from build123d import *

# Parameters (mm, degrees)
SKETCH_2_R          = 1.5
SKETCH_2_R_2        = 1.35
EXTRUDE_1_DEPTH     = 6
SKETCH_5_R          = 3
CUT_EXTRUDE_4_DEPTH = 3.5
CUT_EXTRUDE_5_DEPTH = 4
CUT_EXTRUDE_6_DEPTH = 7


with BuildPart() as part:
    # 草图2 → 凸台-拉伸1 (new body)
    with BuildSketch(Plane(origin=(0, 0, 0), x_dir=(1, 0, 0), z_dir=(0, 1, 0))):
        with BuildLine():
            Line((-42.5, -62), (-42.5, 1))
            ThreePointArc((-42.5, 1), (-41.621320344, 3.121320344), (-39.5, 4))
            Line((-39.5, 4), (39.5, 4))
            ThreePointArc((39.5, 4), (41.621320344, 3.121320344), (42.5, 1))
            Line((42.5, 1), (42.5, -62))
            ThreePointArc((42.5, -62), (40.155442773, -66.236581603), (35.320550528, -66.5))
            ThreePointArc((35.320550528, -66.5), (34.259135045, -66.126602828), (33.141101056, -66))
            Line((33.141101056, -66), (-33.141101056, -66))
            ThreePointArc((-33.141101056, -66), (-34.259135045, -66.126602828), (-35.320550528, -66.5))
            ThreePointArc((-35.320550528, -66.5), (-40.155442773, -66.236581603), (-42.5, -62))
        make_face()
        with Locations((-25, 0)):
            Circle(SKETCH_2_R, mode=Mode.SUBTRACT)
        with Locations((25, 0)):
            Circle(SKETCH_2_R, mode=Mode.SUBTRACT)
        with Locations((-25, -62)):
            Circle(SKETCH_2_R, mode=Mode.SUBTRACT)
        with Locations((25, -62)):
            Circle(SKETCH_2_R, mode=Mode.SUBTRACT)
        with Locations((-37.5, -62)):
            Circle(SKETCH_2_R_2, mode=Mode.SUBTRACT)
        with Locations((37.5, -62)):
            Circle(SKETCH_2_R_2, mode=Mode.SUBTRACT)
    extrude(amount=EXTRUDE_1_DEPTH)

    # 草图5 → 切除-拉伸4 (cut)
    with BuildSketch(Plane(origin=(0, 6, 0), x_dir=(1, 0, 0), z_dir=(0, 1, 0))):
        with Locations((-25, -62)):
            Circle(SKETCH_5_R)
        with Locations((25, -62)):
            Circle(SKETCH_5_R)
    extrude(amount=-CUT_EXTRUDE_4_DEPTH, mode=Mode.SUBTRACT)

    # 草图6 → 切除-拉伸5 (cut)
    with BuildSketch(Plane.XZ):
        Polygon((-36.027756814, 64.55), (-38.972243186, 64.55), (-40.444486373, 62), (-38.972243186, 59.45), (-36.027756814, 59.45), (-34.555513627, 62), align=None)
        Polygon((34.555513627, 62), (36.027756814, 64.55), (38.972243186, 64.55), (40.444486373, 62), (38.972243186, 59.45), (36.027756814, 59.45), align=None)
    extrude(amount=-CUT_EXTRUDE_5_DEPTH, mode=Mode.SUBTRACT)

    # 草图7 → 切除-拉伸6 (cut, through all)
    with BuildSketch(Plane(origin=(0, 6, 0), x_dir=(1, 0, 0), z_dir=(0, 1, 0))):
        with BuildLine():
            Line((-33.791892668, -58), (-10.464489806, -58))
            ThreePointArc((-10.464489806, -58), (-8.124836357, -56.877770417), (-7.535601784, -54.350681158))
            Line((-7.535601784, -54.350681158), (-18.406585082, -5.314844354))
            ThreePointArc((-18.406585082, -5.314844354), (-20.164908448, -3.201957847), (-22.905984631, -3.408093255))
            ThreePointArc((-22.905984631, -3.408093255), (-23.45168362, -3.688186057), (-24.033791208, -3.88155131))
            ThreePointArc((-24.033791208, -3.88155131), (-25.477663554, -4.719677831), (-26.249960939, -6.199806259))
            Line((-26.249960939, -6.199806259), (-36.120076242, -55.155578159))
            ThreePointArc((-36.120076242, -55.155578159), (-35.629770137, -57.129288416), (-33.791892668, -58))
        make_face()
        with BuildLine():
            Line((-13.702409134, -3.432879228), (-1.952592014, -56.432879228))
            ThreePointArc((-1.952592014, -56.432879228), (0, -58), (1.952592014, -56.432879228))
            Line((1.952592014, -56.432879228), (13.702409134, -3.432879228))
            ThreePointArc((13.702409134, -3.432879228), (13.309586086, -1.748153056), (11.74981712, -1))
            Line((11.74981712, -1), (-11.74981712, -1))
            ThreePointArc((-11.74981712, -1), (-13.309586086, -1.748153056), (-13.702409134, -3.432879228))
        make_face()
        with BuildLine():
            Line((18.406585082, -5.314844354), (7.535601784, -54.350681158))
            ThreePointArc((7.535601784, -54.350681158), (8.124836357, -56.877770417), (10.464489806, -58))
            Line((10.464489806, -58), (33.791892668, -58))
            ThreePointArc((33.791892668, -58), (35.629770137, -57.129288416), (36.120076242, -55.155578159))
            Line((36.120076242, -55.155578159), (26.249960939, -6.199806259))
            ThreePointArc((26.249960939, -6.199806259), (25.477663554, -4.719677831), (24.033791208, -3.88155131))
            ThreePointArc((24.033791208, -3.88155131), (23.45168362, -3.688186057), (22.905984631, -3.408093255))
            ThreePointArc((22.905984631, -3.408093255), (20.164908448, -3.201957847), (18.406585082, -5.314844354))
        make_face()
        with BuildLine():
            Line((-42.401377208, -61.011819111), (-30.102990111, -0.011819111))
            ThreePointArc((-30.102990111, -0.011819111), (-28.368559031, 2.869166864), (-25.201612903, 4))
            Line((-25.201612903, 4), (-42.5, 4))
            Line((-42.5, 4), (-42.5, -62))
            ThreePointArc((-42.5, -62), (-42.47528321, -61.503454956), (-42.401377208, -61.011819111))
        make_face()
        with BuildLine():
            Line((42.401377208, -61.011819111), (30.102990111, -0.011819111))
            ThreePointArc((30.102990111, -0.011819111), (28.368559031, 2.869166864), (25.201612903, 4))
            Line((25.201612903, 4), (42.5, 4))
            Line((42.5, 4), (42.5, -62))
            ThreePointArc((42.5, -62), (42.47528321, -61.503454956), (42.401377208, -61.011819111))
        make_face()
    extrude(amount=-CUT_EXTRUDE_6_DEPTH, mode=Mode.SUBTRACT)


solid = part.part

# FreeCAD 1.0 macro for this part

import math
import FreeCAD as App
import Part
import Sketcher
from FreeCAD import Vector
Q = App.Units.Quantity


def add_polygon(sketch, points):
    """Adds a closed chain of lines whose ends are joined by coincident constraints."""
    first, n = sketch.GeometryCount, len(points)
    for a, b in zip(points, points[1:] + points[:1]):
        sketch.addGeometry(Part.LineSegment(App.Vector(*a, 0), App.Vector(*b, 0)), False)
    for i in range(n):
        sketch.addConstraint(Sketcher.Constraint("Coincident", first + i, 2, first + (i + 1) % n, 1))

doc = App.newDocument("Part")
body = doc.addObject("PartDesign::Body", "Body")

sketch1 = doc.addObject("Sketcher::SketchObject", "Sketch")
body.addObject(sketch1)
sketch1.AttachmentSupport = (doc.XZ_Plane, [""])
sketch1.MapMode = "FlatFace"
sketch1.addGeometry(Part.LineSegment(Vector(-42.5, -1, 0), Vector(-42.5, 62, 0)), False)
sketch1.addGeometry(Part.ArcOfCircle(Part.Circle(Vector(-37.5, 62, 0), Vector(0, 0, 1), 5), math.radians(64), math.radians(180)), False)
sketch1.addGeometry(Part.ArcOfCircle(Part.Circle(Vector(-33.1, 71, 0), Vector(0, 0, 1), 5), math.radians(-116), math.radians(-90)), False)
sketch1.addGeometry(Part.LineSegment(Vector(-33.1, 66, 0), Vector(33.1, 66, 0)), False)
sketch1.addGeometry(Part.ArcOfCircle(Part.Circle(Vector(33.1, 71, 0), Vector(0, 0, 1), 5), math.radians(-90), math.radians(-64)), False)
sketch1.addGeometry(Part.ArcOfCircle(Part.Circle(Vector(37.5, 62, 0), Vector(0, 0, 1), 5), math.radians(0), math.radians(116)), False)
sketch1.addGeometry(Part.LineSegment(Vector(42.5, 62, 0), Vector(42.5, -1, 0)), False)
sketch1.addGeometry(Part.ArcOfCircle(Part.Circle(Vector(39.5, -1, 0), Vector(0, 0, 1), 3), math.radians(-90), math.radians(0)), False)
sketch1.addGeometry(Part.LineSegment(Vector(39.5, -4, 0), Vector(-39.5, -4, 0)), False)
sketch1.addGeometry(Part.ArcOfCircle(Part.Circle(Vector(-39.5, -1, 0), Vector(0, 0, 1), 3), math.radians(180), math.radians(270)), False)
sketch1.addGeometry(Part.Circle(Vector(37.5, 62, 0), Vector(0, 0, 1), 1.4), False)
sketch1.addGeometry(Part.Circle(Vector(25, 62, 0), Vector(0, 0, 1), 1.5), False)
sketch1.addGeometry(Part.Circle(Vector(-25, 62, 0), Vector(0, 0, 1), 1.5), False)
sketch1.addGeometry(Part.Circle(Vector(-37.5, 62, 0), Vector(0, 0, 1), 1.4), False)
sketch1.addGeometry(Part.Circle(Vector(25, 0, 0), Vector(0, 0, 1), 1.5), False)
sketch1.addGeometry(Part.Circle(Vector(-25, 0, 0), Vector(0, 0, 1), 1.5), False)
sketch1.addConstraint(Sketcher.Constraint("Tangent", 0, 2, 1, 2))
sketch1.addConstraint(Sketcher.Constraint("Tangent", 1, 1, 2, 1))
sketch1.addConstraint(Sketcher.Constraint("Tangent", 2, 2, 3, 1))
sketch1.addConstraint(Sketcher.Constraint("Tangent", 3, 2, 4, 1))
sketch1.addConstraint(Sketcher.Constraint("Tangent", 4, 2, 5, 2))
sketch1.addConstraint(Sketcher.Constraint("Tangent", 5, 1, 6, 1))
sketch1.addConstraint(Sketcher.Constraint("Tangent", 6, 2, 7, 2))
sketch1.addConstraint(Sketcher.Constraint("Tangent", 7, 1, 8, 1))
sketch1.addConstraint(Sketcher.Constraint("Tangent", 8, 2, 9, 2))
sketch1.addConstraint(Sketcher.Constraint("Tangent", 9, 1, 0, 1))
sketch1.addConstraint(Sketcher.Constraint("Vertical", 0))
sketch1.addConstraint(Sketcher.Constraint("Horizontal", 3))
sketch1.addConstraint(Sketcher.Constraint("Vertical", 6))
sketch1.addConstraint(Sketcher.Constraint("Horizontal", 8))
sketch1.addConstraint(Sketcher.Constraint("Coincident", 10, 3, 5, 3))
sketch1.addConstraint(Sketcher.Constraint("Coincident", 13, 3, 1, 3))
sketch1.addConstraint(Sketcher.Constraint("Equal", 1, 2))
sketch1.addConstraint(Sketcher.Constraint("Equal", 2, 4))
sketch1.addConstraint(Sketcher.Constraint("Equal", 4, 5))
sketch1.addConstraint(Sketcher.Constraint("Equal", 7, 9))
sketch1.addConstraint(Sketcher.Constraint("Equal", 11, 12))
sketch1.addConstraint(Sketcher.Constraint("Equal", 10, 13))
sketch1.addConstraint(Sketcher.Constraint("Equal", 12, 14))
sketch1.addConstraint(Sketcher.Constraint("Equal", 14, 15))
sketch1.addConstraint(Sketcher.Constraint("Symmetric", 14, 3, 15, 3, -1, 1))
sketch1.addConstraint(Sketcher.Constraint("Symmetric", 1, 3, 5, 3, -2))
sketch1.addConstraint(Sketcher.Constraint("Symmetric", 11, 3, 12, 3, -2))
sketch1.addConstraint(Sketcher.Constraint("PointOnObject", 14, 3, -1))
sketch1.addConstraint(Sketcher.Constraint("Horizontal", 10, 3, 11, 3))
sketch1.addConstraint(Sketcher.Constraint("Vertical", 11, 3, 14, 3))
sketch1.addConstraint(Sketcher.Constraint("Diameter", 11, Q("3 mm")))
sketch1.addConstraint(Sketcher.Constraint("Radius", 1, Q("5 mm")))
sketch1.addConstraint(Sketcher.Constraint("Radius", 7, Q("3 mm")))
sketch1.addConstraint(Sketcher.Constraint("Diameter", 10, Q("2.7 mm")))
sketch1.addConstraint(Sketcher.Constraint("DistanceX", 8, 2, 8, 1, Q("79 mm")))
sketch1.addConstraint(Sketcher.Constraint("DistanceY", 0, 1, 0, 2, Q("63 mm")))
sketch1.addConstraint(Sketcher.Constraint("DistanceY", -1, 1, 1, 3, Q("62 mm")))
sketch1.addConstraint(Sketcher.Constraint("DistanceY", -1, 1, 2, 3, Q("71 mm")))
sketch1.addConstraint(Sketcher.Constraint("DistanceX", -1, 1, 11, 3, Q("25 mm")))
pad1 = doc.addObject("PartDesign::Pad", "Pad")
body.addObject(pad1)
pad1.Profile = sketch1
pad1.Length = 6
pad1.Reversed = True

sketch2 = doc.addObject("Sketcher::SketchObject", "Sketch001")
body.addObject(sketch2)
sketch2.AttachmentSupport = (doc.XZ_Plane, [""])
sketch2.MapMode = "FlatFace"
sketch2.AttachmentOffset = App.Placement(Vector(0, 0, -6), App.Rotation())
sketch2.addGeometry(Part.Circle(Vector(-25, 62, 0), Vector(0, 0, 1), 3), False)
sketch2.addGeometry(Part.Circle(Vector(25, 62, 0), Vector(0, 0, 1), 3), False)
sketch2.addConstraint(Sketcher.Constraint("Equal", 0, 1))
sketch2.addConstraint(Sketcher.Constraint("Symmetric", 0, 3, 1, 3, -2))
sketch2.addConstraint(Sketcher.Constraint("Diameter", 0, Q("6 mm")))
sketch2.addConstraint(Sketcher.Constraint("DistanceX", 0, 3, -1, 1, Q("25 mm")))
sketch2.addConstraint(Sketcher.Constraint("DistanceY", -1, 1, 0, 3, Q("62 mm")))
pocket1 = doc.addObject("PartDesign::Pocket", "Pocket")
body.addObject(pocket1)
pocket1.Profile = sketch2
pocket1.Length = 3.5
pocket1.Reversed = True

sketch3 = doc.addObject("Sketcher::SketchObject", "Sketch002")
body.addObject(sketch3)
sketch3.AttachmentSupport = (doc.XZ_Plane, [""])
sketch3.MapMode = "FlatFace"
add_polygon(sketch3, [(-36, 64.5), (-39, 64.5), (-40.4, 62), (-39, 59.5), (-36, 59.5), (-34.6, 62)])
add_polygon(sketch3, [(36, 64.5), (34.6, 62), (36, 59.5), (39, 59.5), (40.4, 62), (39, 64.5)])
sketch3.addConstraint(Sketcher.Constraint("Horizontal", 0))
sketch3.addConstraint(Sketcher.Constraint("Horizontal", 3))
sketch3.addConstraint(Sketcher.Constraint("Horizontal", 8))
sketch3.addConstraint(Sketcher.Constraint("Horizontal", 11))
sketch3.addConstraint(Sketcher.Constraint("Symmetric", 4, 2, 6, 2, -2))
sketch3.addConstraint(Sketcher.Constraint("Symmetric", 3, 2, 7, 2, -2))
sketch3.addConstraint(Sketcher.Constraint("Symmetric", 1, 2, 9, 2, -2))
sketch3.addConstraint(Sketcher.Constraint("Symmetric", 0, 2, 10, 2, -2))
sketch3.addConstraint(Sketcher.Constraint("Parallel", 1, 4))
sketch3.addConstraint(Sketcher.Constraint("Parallel", 2, 5))
sketch3.addConstraint(Sketcher.Constraint("Parallel", 4, 6))
sketch3.addConstraint(Sketcher.Constraint("Parallel", 5, 7))
sketch3.addConstraint(Sketcher.Constraint("Parallel", 6, 9))
sketch3.addConstraint(Sketcher.Constraint("Horizontal", 1, 2, 4, 2))
sketch3.addConstraint(Sketcher.Constraint("Vertical", 0, 2, 2, 2))
sketch3.addConstraint(Sketcher.Constraint("Angle", 1, Q("-120 deg")))
sketch3.addConstraint(Sketcher.Constraint("DistanceY", -1, 1, 1, 2, Q("62 mm")))
sketch3.addConstraint(Sketcher.Constraint("DistanceX", 2, 2, 7, 2, Q("75 mm")))
sketch3.addConstraint(Sketcher.Constraint("DistanceY", 2, 2, 0, 2, Q("5.1 mm")))
sketch3.addConstraint(Sketcher.Constraint("DistanceX", 0, 2, 0, 1, Q("2.944486 mm")))
pocket2 = doc.addObject("PartDesign::Pocket", "Pocket001")
body.addObject(pocket2)
pocket2.Profile = sketch3
pocket2.Length = 4

sketch4 = doc.addObject("Sketcher::SketchObject", "Sketch003")
body.addObject(sketch4)
sketch4.AttachmentSupport = (doc.XZ_Plane, [""])
sketch4.MapMode = "FlatFace"
sketch4.AttachmentOffset = App.Placement(Vector(0, 0, -6), App.Rotation())
sketch4.addGeometry(Part.LineSegment(Vector(-33.8, 58, 0), Vector(-10.5, 58, 0)), False)
sketch4.addGeometry(Part.ArcOfCircle(Part.Circle(Vector(-10.5, 55, 0), Vector(0, 0, 1), 3), math.radians(-12), math.radians(90)), False)
sketch4.addGeometry(Part.LineSegment(Vector(-7.5, 54.4, 0), Vector(-18.4, 5.3, 0)), False)
sketch4.addGeometry(Part.ArcOfCircle(Part.Circle(Vector(-21.3, 6, 0), Vector(0, 0, 1), 3), math.radians(-122), math.radians(-12)), False)
sketch4.addGeometry(Part.ArcOfCircle(Part.Circle(Vector(-25, 0, 0), Vector(0, 0, 1), 4), math.radians(58.43), math.radians(76.02)), False)
sketch4.addGeometry(Part.ArcOfCircle(Part.Circle(Vector(-23.3, 6.8, 0), Vector(0, 0, 1), 3), math.radians(-169), math.radians(-104)), False)
sketch4.addGeometry(Part.LineSegment(Vector(-26.2, 6.2, 0), Vector(-36.1, 55.2, 0)), False)
sketch4.addGeometry(Part.ArcOfCircle(Part.Circle(Vector(-33.8, 55.6, 0), Vector(0, 0, 1), 2.4), math.radians(90), math.radians(191)), False)
sketch4.addGeometry(Part.LineSegment(Vector(-13.7, 3.4, 0), Vector(-2, 56.4, 0)), False)
sketch4.addGeometry(Part.ArcOfCircle(Part.Circle(Vector(0, 56, 0), Vector(0, 0, 1), 2), math.radians(13), math.radians(167)), False)
sketch4.addGeometry(Part.LineSegment(Vector(2, 56.4, 0), Vector(13.7, 3.4, 0)), False)
sketch4.addGeometry(Part.ArcOfCircle(Part.Circle(Vector(11.7, 3, 0), Vector(0, 0, 1), 2), math.radians(-90), math.radians(12)), False)
sketch4.addGeometry(Part.LineSegment(Vector(11.7, 1, 0), Vector(-11.7, 1, 0)), False)
sketch4.addGeometry(Part.ArcOfCircle(Part.Circle(Vector(-11.7, 3, 0), Vector(0, 0, 1), 2), math.radians(168), math.radians(270)), False)
sketch4.addGeometry(Part.LineSegment(Vector(18.4, 5.3, 0), Vector(7.5, 54.4, 0)), False)
sketch4.addGeometry(Part.ArcOfCircle(Part.Circle(Vector(10.5, 55, 0), Vector(0, 0, 1), 3), math.radians(90), math.radians(192)), False)
sketch4.addGeometry(Part.LineSegment(Vector(10.5, 58, 0), Vector(33.8, 58, 0)), False)
sketch4.addGeometry(Part.ArcOfCircle(Part.Circle(Vector(33.8, 55.6, 0), Vector(0, 0, 1), 2.4), math.radians(-11), math.radians(90)), False)
sketch4.addGeometry(Part.LineSegment(Vector(36.1, 55.2, 0), Vector(26.2, 6.2, 0)), False)
sketch4.addGeometry(Part.ArcOfCircle(Part.Circle(Vector(23.3, 6.8, 0), Vector(0, 0, 1), 3), math.radians(-76), math.radians(-11)), False)
sketch4.addGeometry(Part.ArcOfCircle(Part.Circle(Vector(25, 0, 0), Vector(0, 0, 1), 4), math.radians(103.98), math.radians(121.57)), False)
sketch4.addGeometry(Part.ArcOfCircle(Part.Circle(Vector(21.3, 6, 0), Vector(0, 0, 1), 3), math.radians(-168), math.radians(-58)), False)
sketch4.addGeometry(Part.LineSegment(Vector(-42.4, 61, 0), Vector(-30.1, 0, 0)), False)
sketch4.addGeometry(Part.ArcOfCircle(Part.Circle(Vector(-25.2, 1, 0), Vector(0, 0, 1), 5), math.radians(-169), math.radians(-90)), False)
sketch4.addGeometry(Part.LineSegment(Vector(-25.2, -4, 0), Vector(-42.5, -4, 0)), False)
sketch4.addGeometry(Part.LineSegment(Vector(-42.5, -4, 0), Vector(-42.5, 62, 0)), False)
sketch4.addGeometry(Part.ArcOfCircle(Part.Circle(Vector(-37.5, 62, 0), Vector(0, 0, 1), 5), math.radians(-180), math.radians(-168.6)), False)
sketch4.addGeometry(Part.LineSegment(Vector(30.1, 0, 0), Vector(42.4, 61, 0)), False)
sketch4.addGeometry(Part.ArcOfCircle(Part.Circle(Vector(37.5, 62, 0), Vector(0, 0, 1), 5), math.radians(-11.4), math.radians(0)), False)
sketch4.addGeometry(Part.LineSegment(Vector(42.5, 62, 0), Vector(42.5, -4, 0)), False)
sketch4.addGeometry(Part.LineSegment(Vector(42.5, -4, 0), Vector(25.2, -4, 0)), False)
sketch4.addGeometry(Part.ArcOfCircle(Part.Circle(Vector(25.2, 1, 0), Vector(0, 0, 1), 5), math.radians(-90), math.radians(-11)), False)
sketch4.addConstraint(Sketcher.Constraint("Tangent", 0, 2, 1, 2))
sketch4.addConstraint(Sketcher.Constraint("Tangent", 1, 1, 2, 1))
sketch4.addConstraint(Sketcher.Constraint("Tangent", 2, 2, 3, 2))
sketch4.addConstraint(Sketcher.Constraint("Tangent", 3, 1, 4, 1))
sketch4.addConstraint(Sketcher.Constraint("Tangent", 4, 2, 5, 2))
sketch4.addConstraint(Sketcher.Constraint("Tangent", 5, 1, 6, 1))
sketch4.addConstraint(Sketcher.Constraint("Tangent", 6, 2, 7, 2))
sketch4.addConstraint(Sketcher.Constraint("Tangent", 7, 1, 0, 1))
sketch4.addConstraint(Sketcher.Constraint("Tangent", 8, 2, 9, 2))
sketch4.addConstraint(Sketcher.Constraint("Tangent", 9, 1, 10, 1))
sketch4.addConstraint(Sketcher.Constraint("Tangent", 10, 2, 11, 2))
sketch4.addConstraint(Sketcher.Constraint("Tangent", 11, 1, 12, 1))
sketch4.addConstraint(Sketcher.Constraint("Tangent", 12, 2, 13, 2))
sketch4.addConstraint(Sketcher.Constraint("Tangent", 13, 1, 8, 1))
sketch4.addConstraint(Sketcher.Constraint("Tangent", 14, 2, 15, 2))
sketch4.addConstraint(Sketcher.Constraint("Tangent", 15, 1, 16, 1))
sketch4.addConstraint(Sketcher.Constraint("Tangent", 16, 2, 17, 2))
sketch4.addConstraint(Sketcher.Constraint("Tangent", 17, 1, 18, 1))
sketch4.addConstraint(Sketcher.Constraint("Tangent", 18, 2, 19, 2))
sketch4.addConstraint(Sketcher.Constraint("Tangent", 19, 1, 20, 1))
sketch4.addConstraint(Sketcher.Constraint("Tangent", 20, 2, 21, 2))
sketch4.addConstraint(Sketcher.Constraint("Tangent", 21, 1, 14, 1))
sketch4.addConstraint(Sketcher.Constraint("Tangent", 22, 2, 23, 1))
sketch4.addConstraint(Sketcher.Constraint("Tangent", 23, 2, 24, 1))
sketch4.addConstraint(Sketcher.Constraint("Coincident", 24, 2, 25, 1))
sketch4.addConstraint(Sketcher.Constraint("Tangent", 25, 2, 26, 1))
sketch4.addConstraint(Sketcher.Constraint("Tangent", 26, 2, 22, 1))
sketch4.addConstraint(Sketcher.Constraint("Tangent", 27, 2, 28, 1))
sketch4.addConstraint(Sketcher.Constraint("Tangent", 28, 2, 29, 1))
sketch4.addConstraint(Sketcher.Constraint("Coincident", 29, 2, 30, 1))
sketch4.addConstraint(Sketcher.Constraint("Tangent", 30, 2, 31, 1))
sketch4.addConstraint(Sketcher.Constraint("Tangent", 31, 2, 27, 1))
sketch4.addConstraint(Sketcher.Constraint("Horizontal", 0))
sketch4.addConstraint(Sketcher.Constraint("Horizontal", 12))
sketch4.addConstraint(Sketcher.Constraint("Horizontal", 16))
sketch4.addConstraint(Sketcher.Constraint("Horizontal", 24))
sketch4.addConstraint(Sketcher.Constraint("Vertical", 25))
sketch4.addConstraint(Sketcher.Constraint("Vertical", 29))
sketch4.addConstraint(Sketcher.Constraint("Horizontal", 30))
sketch4.addConstraint(Sketcher.Constraint("Equal", 1, 3))
sketch4.addConstraint(Sketcher.Constraint("Equal", 3, 5))
sketch4.addConstraint(Sketcher.Constraint("Equal", 9, 11))
sketch4.addConstraint(Sketcher.Constraint("Equal", 11, 13))
sketch4.addConstraint(Sketcher.Constraint("Equal", 5, 15))
sketch4.addConstraint(Sketcher.Constraint("Equal", 7, 17))
sketch4.addConstraint(Sketcher.Constraint("Equal", 15, 19))
sketch4.addConstraint(Sketcher.Constraint("Equal", 4, 20))
sketch4.addConstraint(Sketcher.Constraint("Equal", 19, 21))
sketch4.addConstraint(Sketcher.Constraint("Equal", 23, 26))
sketch4.addConstraint(Sketcher.Constraint("Equal", 26, 28))
sketch4.addConstraint(Sketcher.Constraint("Equal", 28, 31))
sketch4.addConstraint(Sketcher.Constraint("Symmetric", 4, 3, 20, 3, -1, 1))
sketch4.addConstraint(Sketcher.Constraint("Symmetric", 1, 3, 15, 3, -2))
sketch4.addConstraint(Sketcher.Constraint("Symmetric", 5, 3, 19, 3, -2))
sketch4.addConstraint(Sketcher.Constraint("Symmetric", 26, 3, 28, 3, -2))
sketch4.addConstraint(Sketcher.Constraint("Symmetric", 23, 3, 31, 3, -2))
sketch4.addConstraint(Sketcher.Constraint("Symmetric", 8, 2, 9, 1, -2))
sketch4.addConstraint(Sketcher.Constraint("Parallel", 2, 8))
sketch4.addConstraint(Sketcher.Constraint("Parallel", 10, 14))
sketch4.addConstraint(Sketcher.Constraint("Parallel", 6, 22))
sketch4.addConstraint(Sketcher.Constraint("Parallel", 18, 27))
sketch4.addConstraint(Sketcher.Constraint("Horizontal", 31, 3, 11, 1))
sketch4.addConstraint(Sketcher.Constraint("Radius", 1, Q("3 mm")))
sketch4.addConstraint(Sketcher.Constraint("Radius", 4, Q("4 mm")))
sketch4.addConstraint(Sketcher.Constraint("Radius", 9, Q("2 mm")))
sketch4.addConstraint(Sketcher.Constraint("Radius", 23, Q("5 mm")))
sketch4.addConstraint(Sketcher.Constraint("DistanceY", 25, 1, 25, 2, Q("66 mm")))
sketch4.addConstraint(Sketcher.Constraint("DistanceY", -1, 1, 1, 3, Q("55 mm")))
sketch4.addConstraint(Sketcher.Constraint("DistanceX", 4, 3, -1, 1, Q("25 mm")))
sketch4.addConstraint(Sketcher.Constraint("DistanceY", -1, 1, 9, 3, Q("56 mm")))
sketch4.addConstraint(Sketcher.Constraint("DistanceY", -1, 1, 11, 3, Q("3 mm")))
sketch4.addConstraint(Sketcher.Constraint("Angle", 2, Q("-102.5 deg")))
sketch4.addConstraint(Sketcher.Constraint("DistanceX", 26, 3, -1, 1, Q("37.5 mm")))
sketch4.addConstraint(Sketcher.Constraint("Radius", 7, Q("2.37503 mm")))
sketch4.addConstraint(Sketcher.Constraint("DistanceX", 1, 1, -1, 1, Q("7.535602 mm")))
sketch4.addConstraint(Sketcher.Constraint("DistanceX", 22, 2, 4, 2, Q("6.069199 mm")))
sketch4.addConstraint(Sketcher.Constraint("DistanceX", 26, 2, 6, 2, Q("6.281301 mm")))
pocket3 = doc.addObject("PartDesign::Pocket", "Pocket002")
body.addObject(pocket3)
pocket3.Profile = sketch4
pocket3.Type = "ThroughAll"
pocket3.Reversed = True

doc.recompute()
